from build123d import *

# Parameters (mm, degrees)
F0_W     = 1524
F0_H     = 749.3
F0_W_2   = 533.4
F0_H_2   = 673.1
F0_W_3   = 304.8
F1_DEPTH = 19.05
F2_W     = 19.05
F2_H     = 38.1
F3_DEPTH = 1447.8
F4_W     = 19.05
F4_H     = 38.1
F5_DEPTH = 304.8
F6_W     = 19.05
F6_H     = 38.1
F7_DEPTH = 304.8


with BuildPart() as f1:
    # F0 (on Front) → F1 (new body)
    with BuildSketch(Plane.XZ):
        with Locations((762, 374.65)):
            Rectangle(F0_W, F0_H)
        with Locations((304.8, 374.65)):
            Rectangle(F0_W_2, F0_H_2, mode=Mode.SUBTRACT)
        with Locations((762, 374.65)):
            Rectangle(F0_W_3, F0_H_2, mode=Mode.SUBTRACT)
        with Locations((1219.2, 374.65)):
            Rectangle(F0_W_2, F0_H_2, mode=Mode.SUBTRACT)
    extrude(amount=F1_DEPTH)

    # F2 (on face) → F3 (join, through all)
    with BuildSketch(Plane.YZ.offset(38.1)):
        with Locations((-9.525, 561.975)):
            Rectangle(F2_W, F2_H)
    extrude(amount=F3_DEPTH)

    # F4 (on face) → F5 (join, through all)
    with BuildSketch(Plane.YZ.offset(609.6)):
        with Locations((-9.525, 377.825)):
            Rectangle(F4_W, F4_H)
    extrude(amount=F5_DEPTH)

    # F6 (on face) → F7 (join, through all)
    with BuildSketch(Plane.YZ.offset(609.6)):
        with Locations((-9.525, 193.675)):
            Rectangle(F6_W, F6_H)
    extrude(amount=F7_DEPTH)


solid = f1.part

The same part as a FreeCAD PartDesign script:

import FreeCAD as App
import Part
import Sketcher
from FreeCAD import Vector
Q = App.Units.Quantity


def add_polygon(sketch, points):
    """Adds a closed chain of lines whose ends are joined by coincident constraints."""
    first, n = sketch.GeometryCount, len(points)
    for a, b in zip(points, points[1:] + points[:1]):
        sketch.addGeometry(Part.LineSegment(App.Vector(*a, 0), App.Vector(*b, 0)), False)
    for i in range(n):
        sketch.addConstraint(Sketcher.Constraint("Coincident", first + i, 2, first + (i + 1) % n, 1))

doc = App.newDocument("Part")
params = doc.addObject("Spreadsheet::Sheet", "Params")
for row, (alias, value) in enumerate([
    ("sketch1_width", "60 in"),
    ("sketch1_width2", "21 in"),
    ("sketch1_width3", "12 in"),
    ("sketch1_height", "29.5 in"),
    ("sketch1_height2", "26.5 in"),
    ("pad1_length", "0.75 in"),
    ("sketch2_height", "1.5 in"),
    ("sketch2_width", "0.75 in"),
    ("sketch3_height", "1.5 in"),
    ("sketch3_width", "0.75 in"),
    ("pad3_length", "12 in"),
    ("sketch4_height", "1.5 in"),
    ("sketch4_width", "0.75 in"),
    ("pad4_length", "12 in"),
], start=1):
    params.set(f"A{row}", alias)
    params.set(f"B{row}", "=" + value)
    params.setAlias(f"B{row}", alias)

body = doc.addObject("PartDesign::Body", "Body")

# Sketch on XZ plane
sketch1 = body.newObject("Sketcher::SketchObject", "Sketch")
sketch1.AttachmentSupport = (doc.getObject("XZ_Plane"), [""])
sketch1.MapMode = "FlatFace"
add_polygon(sketch1, [(0, 749), (0, 0), (1524, 0), (1524, 749)])  # lines 0-3
add_polygon(sketch1, [(572, 38), (38, 38), (38, 711), (572, 711)])  # lines 4-7
add_polygon(sketch1, [(914, 38), (610, 38), (610, 711), (914, 711)])  # lines 8-11
add_polygon(sketch1, [(1486, 38), (952, 38), (952, 711), (1486, 711)])  # lines 12-15
sketch1.addConstraint([
    Sketcher.Constraint("Vertical", 0),
    Sketcher.Constraint("Horizontal", 1),
    Sketcher.Constraint("Vertical", 2),
    Sketcher.Constraint("Horizontal", 3),
    Sketcher.Constraint("Horizontal", 4),
    Sketcher.Constraint("Vertical", 5),
    Sketcher.Constraint("Horizontal", 6),
    Sketcher.Constraint("Vertical", 7),
    Sketcher.Constraint("Horizontal", 8),
    Sketcher.Constraint("Vertical", 9),
    Sketcher.Constraint("Horizontal", 10),
    Sketcher.Constraint("Vertical", 11),
    Sketcher.Constraint("Horizontal", 12),
    Sketcher.Constraint("Vertical", 13),
    Sketcher.Constraint("Horizontal", 14),
    Sketcher.Constraint("Vertical", 15),
    Sketcher.Constraint("Coincident", 0, 2, -1, 1),
    Sketcher.Constraint("Horizontal", 7, 2, 8, 2),
    Sketcher.Constraint("Horizontal", 6, 2, 9, 2),
    Sketcher.Constraint("Horizontal", 11, 2, 12, 2),
    Sketcher.Constraint("Horizontal", 10, 2, 13, 2),
    Sketcher.Constraint("Equal", 6, 12),
    Sketcher.Constraint("DistanceX", 1, 1, 1, 2, Q("60 in")),
    Sketcher.Constraint("DistanceX", 4, 2, 4, 1, Q("21 in")),
    Sketcher.Constraint("DistanceX", 8, 2, 8, 1, Q("12 in")),
    Sketcher.Constraint("DistanceY", 0, 2, 0, 1, Q("29.5 in")),
    Sketcher.Constraint("DistanceY", 5, 1, 5, 2, Q("26.5 in")),
    Sketcher.Constraint("DistanceY", -1, 1, 5, 2, Q("28 in")),
    Sketcher.Constraint("DistanceX", -1, 1, 8, 2, Q("24 in")),
    Sketcher.Constraint("DistanceX", 7, 2, 12, 2, Q("15 in")),
    Sketcher.Constraint("DistanceX", -1, 1, 4, 2, Q("1.5 in")),
])
sketch1.setExpression("Constraints[38]", "Params.sketch1_width")
sketch1.setExpression("Constraints[39]", "Params.sketch1_width2")
sketch1.setExpression("Constraints[40]", "Params.sketch1_width3")
sketch1.setExpression("Constraints[41]", "Params.sketch1_height")
sketch1.setExpression("Constraints[42]", "Params.sketch1_height2")
pad1 = body.newObject("PartDesign::Pad", "Pad")
pad1.Profile = sketch1
pad1.setExpression("Length", "Params.pad1_length")

# Sketch on YZ plane
sketch2 = body.newObject("Sketcher::SketchObject", "Sketch001")
sketch2.AttachmentSupport = (doc.getObject("YZ_Plane"), [""])
sketch2.MapMode = "FlatFace"
sketch2.AttachmentOffset = App.Placement(Vector(0, 0, 1.5 * 25.4), App.Rotation())
add_polygon(sketch2, [(-19, 581), (-19, 543), (0, 543), (0, 581)])  # lines 0-3
sketch2.addConstraint([
    Sketcher.Constraint("Vertical", 0),
    Sketcher.Constraint("Horizontal", 1),
    Sketcher.Constraint("Vertical", 2),
    Sketcher.Constraint("Horizontal", 3),
    Sketcher.Constraint("PointOnObject", 1, 2, -2),
    Sketcher.Constraint("DistanceY", 0, 2, 0, 1, Q("1.5 in")),
    Sketcher.Constraint("DistanceX", 1, 1, 1, 2, Q("0.75 in")),
    Sketcher.Constraint("DistanceY", -1, 1, 0, 2, Q("21.375 in")),
])
sketch2.setExpression("Constraints[9]", "Params.sketch2_height")
sketch2.setExpression("Constraints[10]", "Params.sketch2_width")
pad2 = body.newObject("PartDesign::Pad", "Pad001")
pad2.Profile = sketch2
pad2.Type = "UpToLast"

# Sketch on YZ plane
sketch3 = body.newObject("Sketcher::SketchObject", "Sketch002")
sketch3.AttachmentSupport = (doc.getObject("YZ_Plane"), [""])
sketch3.MapMode = "FlatFace"
sketch3.AttachmentOffset = App.Placement(Vector(0, 0, 24 * 25.4), App.Rotation())
add_polygon(sketch3, [(-19, 397), (-19, 359), (0, 359), (0, 397)])  # lines 0-3
sketch3.addConstraint([
    Sketcher.Constraint("Vertical", 0),
    Sketcher.Constraint("Horizontal", 1),
    Sketcher.Constraint("Vertical", 2),
    Sketcher.Constraint("Horizontal", 3),
    Sketcher.Constraint("PointOnObject", 1, 2, -2),
    Sketcher.Constraint("DistanceY", 0, 2, 0, 1, Q("1.5 in")),
    Sketcher.Constraint("DistanceX", 1, 1, 1, 2, Q("0.75 in")),
    Sketcher.Constraint("DistanceY", -1, 1, 0, 2, Q("14.125 in")),
])
sketch3.setExpression("Constraints[9]", "Params.sketch3_height")
sketch3.setExpression("Constraints[10]", "Params.sketch3_width")
pad3 = body.newObject("PartDesign::Pad", "Pad002")
pad3.Profile = sketch3
pad3.setExpression("Length", "Params.pad3_length")

# Sketch on YZ plane
sketch4 = body.newObject("Sketcher::SketchObject", "Sketch003")
sketch4.AttachmentSupport = (doc.getObject("YZ_Plane"), [""])
sketch4.MapMode = "FlatFace"
sketch4.AttachmentOffset = App.Placement(Vector(0, 0, 24 * 25.4), App.Rotation())
add_polygon(sketch4, [(-19, 213), (-19, 175), (0, 175), (0, 213)])  # lines 0-3
sketch4.addConstraint([
    Sketcher.Constraint("Vertical", 0),
    Sketcher.Constraint("Horizontal", 1),
    Sketcher.Constraint("Vertical", 2),
    Sketcher.Constraint("Horizontal", 3),
    Sketcher.Constraint("PointOnObject", 1, 2, -2),
    Sketcher.Constraint("DistanceY", 0, 2, 0, 1, Q("1.5 in")),
    Sketcher.Constraint("DistanceX", 1, 1, 1, 2, Q("0.75 in")),
    Sketcher.Constraint("DistanceY", -1, 1, 0, 2, Q("6.875 in")),
])
sketch4.setExpression("Constraints[9]", "Params.sketch4_height")
sketch4.setExpression("Constraints[10]", "Params.sketch4_width")
pad4 = body.newObject("PartDesign::Pad", "Pad003")
pad4.Profile = sketch4
pad4.setExpression("Length", "Params.pad4_length")

doc.recompute()
